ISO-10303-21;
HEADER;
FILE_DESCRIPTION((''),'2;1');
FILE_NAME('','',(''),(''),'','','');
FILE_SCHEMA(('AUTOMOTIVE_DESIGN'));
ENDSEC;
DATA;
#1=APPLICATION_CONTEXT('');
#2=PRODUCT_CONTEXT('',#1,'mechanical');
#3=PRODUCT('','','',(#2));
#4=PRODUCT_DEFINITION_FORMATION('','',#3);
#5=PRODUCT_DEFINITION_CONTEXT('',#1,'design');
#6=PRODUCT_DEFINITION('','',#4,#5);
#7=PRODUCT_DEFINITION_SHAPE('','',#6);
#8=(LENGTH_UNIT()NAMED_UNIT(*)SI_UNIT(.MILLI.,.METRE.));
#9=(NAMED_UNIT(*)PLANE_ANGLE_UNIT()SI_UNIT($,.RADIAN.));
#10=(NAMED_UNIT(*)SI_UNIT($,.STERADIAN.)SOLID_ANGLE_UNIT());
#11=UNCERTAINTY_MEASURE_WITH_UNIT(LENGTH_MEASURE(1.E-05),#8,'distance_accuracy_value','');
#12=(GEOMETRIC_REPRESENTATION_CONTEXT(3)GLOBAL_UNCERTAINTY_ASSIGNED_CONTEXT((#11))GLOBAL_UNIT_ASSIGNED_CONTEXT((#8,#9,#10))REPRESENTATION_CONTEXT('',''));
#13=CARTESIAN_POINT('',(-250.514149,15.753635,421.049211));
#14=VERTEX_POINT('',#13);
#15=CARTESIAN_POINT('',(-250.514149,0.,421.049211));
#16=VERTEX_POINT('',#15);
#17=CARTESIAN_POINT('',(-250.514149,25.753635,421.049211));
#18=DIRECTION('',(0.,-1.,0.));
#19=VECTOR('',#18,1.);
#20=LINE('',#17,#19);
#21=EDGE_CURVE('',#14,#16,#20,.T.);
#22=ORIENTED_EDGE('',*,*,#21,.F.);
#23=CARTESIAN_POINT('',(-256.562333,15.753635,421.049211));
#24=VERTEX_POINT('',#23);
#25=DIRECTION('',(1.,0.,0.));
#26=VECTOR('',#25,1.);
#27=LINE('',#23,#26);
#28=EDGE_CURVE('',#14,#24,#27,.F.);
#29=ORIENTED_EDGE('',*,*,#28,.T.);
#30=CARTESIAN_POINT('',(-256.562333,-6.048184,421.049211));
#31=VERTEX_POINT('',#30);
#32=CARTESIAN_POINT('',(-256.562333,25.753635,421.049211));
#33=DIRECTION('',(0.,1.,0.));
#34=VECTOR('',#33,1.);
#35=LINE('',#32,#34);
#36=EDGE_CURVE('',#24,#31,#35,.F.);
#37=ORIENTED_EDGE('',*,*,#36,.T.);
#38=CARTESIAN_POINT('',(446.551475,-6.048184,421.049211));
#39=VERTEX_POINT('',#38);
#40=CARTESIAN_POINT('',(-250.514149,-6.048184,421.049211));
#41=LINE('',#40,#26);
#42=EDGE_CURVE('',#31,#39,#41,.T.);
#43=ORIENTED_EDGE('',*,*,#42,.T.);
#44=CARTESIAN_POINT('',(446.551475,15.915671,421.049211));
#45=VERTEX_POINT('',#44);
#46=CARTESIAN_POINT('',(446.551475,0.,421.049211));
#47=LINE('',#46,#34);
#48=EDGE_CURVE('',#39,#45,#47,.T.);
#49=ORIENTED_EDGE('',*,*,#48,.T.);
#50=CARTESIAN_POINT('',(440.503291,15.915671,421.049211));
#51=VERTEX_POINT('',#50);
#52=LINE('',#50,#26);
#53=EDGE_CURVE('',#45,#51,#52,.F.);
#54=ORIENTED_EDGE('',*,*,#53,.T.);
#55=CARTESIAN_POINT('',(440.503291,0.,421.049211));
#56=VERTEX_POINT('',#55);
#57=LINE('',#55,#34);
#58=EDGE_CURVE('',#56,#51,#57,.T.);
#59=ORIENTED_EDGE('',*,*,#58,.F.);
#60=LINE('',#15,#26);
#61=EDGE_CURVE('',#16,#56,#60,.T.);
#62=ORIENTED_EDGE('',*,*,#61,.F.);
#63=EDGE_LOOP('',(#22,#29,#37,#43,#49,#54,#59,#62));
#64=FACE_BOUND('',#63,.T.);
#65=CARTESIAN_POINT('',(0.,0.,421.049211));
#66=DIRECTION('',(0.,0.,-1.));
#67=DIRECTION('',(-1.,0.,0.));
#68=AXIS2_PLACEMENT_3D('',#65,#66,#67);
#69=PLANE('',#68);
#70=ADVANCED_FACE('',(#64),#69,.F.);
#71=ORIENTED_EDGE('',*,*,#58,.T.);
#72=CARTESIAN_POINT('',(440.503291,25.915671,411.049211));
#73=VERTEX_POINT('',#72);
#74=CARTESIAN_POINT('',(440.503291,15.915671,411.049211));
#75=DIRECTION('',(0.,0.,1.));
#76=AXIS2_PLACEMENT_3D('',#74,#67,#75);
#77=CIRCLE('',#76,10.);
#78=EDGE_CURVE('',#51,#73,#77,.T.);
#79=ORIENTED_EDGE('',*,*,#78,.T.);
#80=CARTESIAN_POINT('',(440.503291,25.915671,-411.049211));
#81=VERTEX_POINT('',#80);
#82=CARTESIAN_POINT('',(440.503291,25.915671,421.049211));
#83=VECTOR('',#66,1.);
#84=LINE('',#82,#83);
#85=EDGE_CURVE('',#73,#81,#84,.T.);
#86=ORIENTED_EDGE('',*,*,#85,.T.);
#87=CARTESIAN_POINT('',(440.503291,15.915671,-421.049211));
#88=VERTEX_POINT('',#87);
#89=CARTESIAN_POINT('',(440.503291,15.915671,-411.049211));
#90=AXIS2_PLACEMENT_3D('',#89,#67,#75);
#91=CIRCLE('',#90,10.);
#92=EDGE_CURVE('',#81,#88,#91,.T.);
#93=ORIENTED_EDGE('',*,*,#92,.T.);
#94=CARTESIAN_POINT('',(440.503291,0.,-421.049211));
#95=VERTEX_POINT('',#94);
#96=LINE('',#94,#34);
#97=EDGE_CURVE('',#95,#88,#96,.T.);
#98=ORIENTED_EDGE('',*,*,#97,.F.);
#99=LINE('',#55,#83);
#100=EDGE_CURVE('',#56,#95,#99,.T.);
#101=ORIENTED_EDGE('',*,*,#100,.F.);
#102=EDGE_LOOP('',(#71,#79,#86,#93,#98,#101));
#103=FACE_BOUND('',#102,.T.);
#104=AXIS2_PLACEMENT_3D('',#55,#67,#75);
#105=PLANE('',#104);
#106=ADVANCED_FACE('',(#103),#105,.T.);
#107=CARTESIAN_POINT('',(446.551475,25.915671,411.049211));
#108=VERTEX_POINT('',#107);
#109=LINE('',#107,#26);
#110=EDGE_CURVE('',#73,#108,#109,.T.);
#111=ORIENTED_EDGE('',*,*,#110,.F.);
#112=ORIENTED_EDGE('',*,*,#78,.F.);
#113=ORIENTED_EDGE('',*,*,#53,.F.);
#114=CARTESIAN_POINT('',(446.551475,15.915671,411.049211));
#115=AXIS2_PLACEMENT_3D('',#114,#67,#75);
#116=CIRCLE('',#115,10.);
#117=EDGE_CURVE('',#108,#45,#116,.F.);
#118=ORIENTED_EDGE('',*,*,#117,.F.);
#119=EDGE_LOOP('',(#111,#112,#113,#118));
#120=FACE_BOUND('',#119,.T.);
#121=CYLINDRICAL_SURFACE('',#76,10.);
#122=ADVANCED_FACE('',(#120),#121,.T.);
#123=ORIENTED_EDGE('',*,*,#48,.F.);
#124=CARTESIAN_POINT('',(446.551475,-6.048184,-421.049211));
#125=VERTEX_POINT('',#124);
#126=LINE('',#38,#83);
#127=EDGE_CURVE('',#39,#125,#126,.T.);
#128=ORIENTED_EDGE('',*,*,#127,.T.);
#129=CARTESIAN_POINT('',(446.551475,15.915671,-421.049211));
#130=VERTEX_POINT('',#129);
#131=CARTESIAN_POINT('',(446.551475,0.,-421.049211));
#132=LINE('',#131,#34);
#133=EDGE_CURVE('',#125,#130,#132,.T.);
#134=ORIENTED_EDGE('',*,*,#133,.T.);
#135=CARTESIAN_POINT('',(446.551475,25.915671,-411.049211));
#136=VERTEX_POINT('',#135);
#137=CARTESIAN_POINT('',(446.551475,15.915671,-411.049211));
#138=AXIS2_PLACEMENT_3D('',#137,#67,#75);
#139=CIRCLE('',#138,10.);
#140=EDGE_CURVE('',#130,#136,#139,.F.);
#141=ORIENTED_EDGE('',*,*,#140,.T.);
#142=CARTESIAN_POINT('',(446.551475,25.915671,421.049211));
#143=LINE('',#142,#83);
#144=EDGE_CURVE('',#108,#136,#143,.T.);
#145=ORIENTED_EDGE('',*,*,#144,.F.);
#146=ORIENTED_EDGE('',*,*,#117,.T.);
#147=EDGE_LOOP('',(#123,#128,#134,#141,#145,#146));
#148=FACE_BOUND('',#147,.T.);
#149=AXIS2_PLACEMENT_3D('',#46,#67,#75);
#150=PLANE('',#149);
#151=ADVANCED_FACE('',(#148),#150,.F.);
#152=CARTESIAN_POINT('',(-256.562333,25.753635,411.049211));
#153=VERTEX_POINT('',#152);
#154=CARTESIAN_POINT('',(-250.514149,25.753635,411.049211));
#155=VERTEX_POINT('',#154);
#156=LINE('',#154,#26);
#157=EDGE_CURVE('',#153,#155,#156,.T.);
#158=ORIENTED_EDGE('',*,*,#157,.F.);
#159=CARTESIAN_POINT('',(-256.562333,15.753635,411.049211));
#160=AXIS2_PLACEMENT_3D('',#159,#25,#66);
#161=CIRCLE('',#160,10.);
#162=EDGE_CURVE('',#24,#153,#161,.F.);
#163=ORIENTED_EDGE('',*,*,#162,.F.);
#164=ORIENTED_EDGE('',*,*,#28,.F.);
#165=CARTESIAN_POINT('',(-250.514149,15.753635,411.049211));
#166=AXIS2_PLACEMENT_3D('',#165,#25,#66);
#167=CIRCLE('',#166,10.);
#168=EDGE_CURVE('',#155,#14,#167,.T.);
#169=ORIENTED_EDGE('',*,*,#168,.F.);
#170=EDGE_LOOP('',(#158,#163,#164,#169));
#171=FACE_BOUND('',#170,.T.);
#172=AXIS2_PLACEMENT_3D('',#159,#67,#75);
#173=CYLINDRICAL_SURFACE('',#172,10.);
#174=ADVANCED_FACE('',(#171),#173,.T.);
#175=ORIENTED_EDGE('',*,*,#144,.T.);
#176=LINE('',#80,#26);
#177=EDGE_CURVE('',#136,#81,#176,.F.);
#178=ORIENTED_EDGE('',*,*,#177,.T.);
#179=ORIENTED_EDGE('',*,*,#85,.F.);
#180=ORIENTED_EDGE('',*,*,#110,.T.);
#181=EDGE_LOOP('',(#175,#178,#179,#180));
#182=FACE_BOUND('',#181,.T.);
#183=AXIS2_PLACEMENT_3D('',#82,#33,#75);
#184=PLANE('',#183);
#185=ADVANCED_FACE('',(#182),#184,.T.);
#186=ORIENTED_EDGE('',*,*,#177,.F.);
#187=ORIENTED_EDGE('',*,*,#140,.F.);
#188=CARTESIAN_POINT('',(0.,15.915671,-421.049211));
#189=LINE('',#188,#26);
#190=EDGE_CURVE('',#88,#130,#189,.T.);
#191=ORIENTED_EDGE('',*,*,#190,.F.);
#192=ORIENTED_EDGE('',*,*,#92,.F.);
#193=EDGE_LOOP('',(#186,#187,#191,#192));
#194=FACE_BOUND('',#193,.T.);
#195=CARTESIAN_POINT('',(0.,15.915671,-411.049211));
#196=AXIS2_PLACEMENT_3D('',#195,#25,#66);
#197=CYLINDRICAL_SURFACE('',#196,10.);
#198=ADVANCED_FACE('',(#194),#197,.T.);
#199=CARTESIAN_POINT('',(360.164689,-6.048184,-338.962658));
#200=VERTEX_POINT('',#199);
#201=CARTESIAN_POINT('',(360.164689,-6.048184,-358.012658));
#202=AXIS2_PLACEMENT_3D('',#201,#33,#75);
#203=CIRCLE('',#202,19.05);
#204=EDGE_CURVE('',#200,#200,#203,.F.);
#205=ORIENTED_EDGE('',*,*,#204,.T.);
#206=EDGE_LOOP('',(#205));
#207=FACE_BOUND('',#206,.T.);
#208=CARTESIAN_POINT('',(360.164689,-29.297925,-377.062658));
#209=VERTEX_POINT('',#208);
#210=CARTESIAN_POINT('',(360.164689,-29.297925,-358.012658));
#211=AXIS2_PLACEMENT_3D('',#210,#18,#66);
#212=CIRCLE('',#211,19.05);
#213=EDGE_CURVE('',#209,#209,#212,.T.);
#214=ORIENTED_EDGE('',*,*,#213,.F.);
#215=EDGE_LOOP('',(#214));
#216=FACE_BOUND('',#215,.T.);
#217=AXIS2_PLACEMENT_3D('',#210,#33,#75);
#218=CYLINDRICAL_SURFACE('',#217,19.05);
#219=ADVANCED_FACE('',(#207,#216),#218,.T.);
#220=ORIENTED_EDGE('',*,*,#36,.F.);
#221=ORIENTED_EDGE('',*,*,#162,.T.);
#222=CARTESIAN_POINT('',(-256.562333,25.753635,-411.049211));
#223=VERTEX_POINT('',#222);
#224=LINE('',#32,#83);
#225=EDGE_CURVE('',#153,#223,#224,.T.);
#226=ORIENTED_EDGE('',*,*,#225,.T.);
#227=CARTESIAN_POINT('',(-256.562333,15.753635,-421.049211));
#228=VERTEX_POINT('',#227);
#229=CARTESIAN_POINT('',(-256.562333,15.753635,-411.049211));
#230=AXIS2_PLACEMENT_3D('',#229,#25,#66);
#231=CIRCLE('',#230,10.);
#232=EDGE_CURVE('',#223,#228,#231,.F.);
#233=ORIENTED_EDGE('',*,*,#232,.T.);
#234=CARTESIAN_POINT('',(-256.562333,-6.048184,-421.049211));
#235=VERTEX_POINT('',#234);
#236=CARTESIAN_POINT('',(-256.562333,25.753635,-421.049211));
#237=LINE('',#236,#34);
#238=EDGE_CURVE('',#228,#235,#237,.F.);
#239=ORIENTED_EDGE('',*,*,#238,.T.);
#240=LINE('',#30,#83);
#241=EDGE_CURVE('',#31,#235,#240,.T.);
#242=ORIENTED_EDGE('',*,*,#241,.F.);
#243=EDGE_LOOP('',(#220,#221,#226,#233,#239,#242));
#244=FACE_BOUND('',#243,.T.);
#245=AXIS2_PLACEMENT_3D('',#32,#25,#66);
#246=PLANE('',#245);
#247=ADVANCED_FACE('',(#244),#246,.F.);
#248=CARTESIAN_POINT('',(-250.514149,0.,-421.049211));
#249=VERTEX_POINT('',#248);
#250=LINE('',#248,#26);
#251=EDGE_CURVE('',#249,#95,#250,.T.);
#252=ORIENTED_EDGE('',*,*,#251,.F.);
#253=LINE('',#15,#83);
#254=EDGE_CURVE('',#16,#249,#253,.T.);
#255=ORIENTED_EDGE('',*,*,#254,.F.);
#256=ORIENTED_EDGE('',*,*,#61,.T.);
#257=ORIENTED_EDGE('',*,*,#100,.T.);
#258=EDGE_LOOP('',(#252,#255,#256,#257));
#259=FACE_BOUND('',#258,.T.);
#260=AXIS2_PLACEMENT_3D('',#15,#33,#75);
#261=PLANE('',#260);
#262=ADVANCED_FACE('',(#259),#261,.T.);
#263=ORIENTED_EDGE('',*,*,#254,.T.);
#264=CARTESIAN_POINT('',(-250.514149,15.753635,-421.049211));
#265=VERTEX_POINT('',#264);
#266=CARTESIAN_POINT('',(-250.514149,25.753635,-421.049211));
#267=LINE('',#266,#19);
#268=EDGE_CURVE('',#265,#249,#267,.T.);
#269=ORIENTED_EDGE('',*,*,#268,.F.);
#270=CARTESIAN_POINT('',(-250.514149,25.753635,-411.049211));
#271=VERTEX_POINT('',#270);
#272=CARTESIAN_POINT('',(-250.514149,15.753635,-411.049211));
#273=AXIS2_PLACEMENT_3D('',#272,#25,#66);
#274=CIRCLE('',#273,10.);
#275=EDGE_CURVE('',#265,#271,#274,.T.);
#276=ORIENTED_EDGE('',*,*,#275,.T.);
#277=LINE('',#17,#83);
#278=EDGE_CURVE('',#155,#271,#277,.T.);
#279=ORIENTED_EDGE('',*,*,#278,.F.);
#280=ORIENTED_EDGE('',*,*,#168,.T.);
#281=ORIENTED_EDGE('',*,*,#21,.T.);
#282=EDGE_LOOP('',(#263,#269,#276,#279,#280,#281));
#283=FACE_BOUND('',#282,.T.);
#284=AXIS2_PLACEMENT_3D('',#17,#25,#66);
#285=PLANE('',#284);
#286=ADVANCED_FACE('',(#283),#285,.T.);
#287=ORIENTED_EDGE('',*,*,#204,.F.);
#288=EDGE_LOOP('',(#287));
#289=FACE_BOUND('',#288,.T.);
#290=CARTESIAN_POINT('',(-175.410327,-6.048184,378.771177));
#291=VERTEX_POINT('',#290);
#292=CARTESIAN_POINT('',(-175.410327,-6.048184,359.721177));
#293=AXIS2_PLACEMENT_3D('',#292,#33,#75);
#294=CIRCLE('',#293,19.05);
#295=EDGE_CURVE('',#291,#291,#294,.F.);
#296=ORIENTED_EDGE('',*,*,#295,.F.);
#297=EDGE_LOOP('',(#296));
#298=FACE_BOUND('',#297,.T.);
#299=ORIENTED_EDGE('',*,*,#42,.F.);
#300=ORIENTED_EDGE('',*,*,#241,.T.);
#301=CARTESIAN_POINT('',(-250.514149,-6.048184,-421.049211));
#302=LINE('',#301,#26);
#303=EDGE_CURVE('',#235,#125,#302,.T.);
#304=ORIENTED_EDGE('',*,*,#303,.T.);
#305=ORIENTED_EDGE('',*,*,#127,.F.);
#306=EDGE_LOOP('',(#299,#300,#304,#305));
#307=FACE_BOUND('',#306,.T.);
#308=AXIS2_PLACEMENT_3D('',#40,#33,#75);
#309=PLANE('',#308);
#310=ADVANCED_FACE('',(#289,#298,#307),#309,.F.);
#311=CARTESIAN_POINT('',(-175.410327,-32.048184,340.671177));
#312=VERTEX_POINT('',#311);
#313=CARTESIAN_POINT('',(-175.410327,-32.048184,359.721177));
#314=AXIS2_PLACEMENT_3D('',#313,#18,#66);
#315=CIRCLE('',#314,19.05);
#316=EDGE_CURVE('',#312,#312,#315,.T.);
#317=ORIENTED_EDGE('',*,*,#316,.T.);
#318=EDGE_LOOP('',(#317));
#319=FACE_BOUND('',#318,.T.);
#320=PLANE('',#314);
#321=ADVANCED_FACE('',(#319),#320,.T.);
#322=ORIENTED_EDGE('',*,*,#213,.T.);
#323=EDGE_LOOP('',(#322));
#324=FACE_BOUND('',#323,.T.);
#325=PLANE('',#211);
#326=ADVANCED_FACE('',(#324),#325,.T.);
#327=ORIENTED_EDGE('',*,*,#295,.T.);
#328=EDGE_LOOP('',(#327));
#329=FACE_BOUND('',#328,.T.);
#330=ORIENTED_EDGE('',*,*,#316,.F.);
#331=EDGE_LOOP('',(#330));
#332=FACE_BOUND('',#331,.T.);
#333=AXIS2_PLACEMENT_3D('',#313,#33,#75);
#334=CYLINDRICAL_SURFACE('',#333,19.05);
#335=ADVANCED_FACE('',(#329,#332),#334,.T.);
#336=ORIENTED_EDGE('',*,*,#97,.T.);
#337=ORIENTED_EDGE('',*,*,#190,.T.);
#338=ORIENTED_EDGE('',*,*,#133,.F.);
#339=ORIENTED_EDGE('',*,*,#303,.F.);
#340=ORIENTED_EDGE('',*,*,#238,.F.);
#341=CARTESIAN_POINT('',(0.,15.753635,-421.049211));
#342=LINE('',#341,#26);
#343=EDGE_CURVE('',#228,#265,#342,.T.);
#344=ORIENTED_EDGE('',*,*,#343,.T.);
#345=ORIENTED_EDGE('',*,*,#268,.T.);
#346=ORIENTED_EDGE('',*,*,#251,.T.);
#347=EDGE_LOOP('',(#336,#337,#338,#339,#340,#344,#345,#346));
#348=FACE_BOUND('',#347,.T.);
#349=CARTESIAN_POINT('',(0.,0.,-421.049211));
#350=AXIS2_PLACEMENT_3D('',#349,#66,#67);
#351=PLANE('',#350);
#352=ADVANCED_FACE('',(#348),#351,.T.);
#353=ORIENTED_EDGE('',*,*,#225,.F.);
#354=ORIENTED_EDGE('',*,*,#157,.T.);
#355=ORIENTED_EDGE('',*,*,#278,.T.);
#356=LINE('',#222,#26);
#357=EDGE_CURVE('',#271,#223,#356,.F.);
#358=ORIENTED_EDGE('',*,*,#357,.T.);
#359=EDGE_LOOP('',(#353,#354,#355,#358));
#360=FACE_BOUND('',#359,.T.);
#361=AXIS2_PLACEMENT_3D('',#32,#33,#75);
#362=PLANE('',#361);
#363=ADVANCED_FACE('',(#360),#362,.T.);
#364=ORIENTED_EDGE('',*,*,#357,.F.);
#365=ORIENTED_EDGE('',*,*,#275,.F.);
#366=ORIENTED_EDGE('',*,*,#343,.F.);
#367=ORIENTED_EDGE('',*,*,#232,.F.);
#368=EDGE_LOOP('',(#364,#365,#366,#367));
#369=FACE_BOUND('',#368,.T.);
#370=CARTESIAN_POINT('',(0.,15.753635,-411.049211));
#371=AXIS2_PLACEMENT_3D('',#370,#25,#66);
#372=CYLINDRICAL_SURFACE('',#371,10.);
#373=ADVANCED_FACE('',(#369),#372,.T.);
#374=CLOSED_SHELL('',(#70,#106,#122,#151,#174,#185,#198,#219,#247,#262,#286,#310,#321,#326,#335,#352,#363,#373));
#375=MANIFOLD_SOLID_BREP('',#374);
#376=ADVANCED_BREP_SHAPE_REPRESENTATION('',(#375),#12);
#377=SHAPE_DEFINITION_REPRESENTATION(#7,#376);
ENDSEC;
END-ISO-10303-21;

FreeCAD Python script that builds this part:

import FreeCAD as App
import Part
import Sketcher

V = App.Vector


def edges_at(feature, points):
    """Names of the edges that pass closest to the given points."""
    edges = feature.Shape.Edges
    near = lambda p: min(range(len(edges)), key=lambda i: edges[i].distToShape(Part.Vertex(*p))[0])
    return sorted({f"Edge{near(p) + 1}" for p in points})


def add_polygon(sketch, points):
    """Adds a closed chain of lines whose ends are joined by coincident constraints."""
    first, n = sketch.GeometryCount, len(points)
    for a, b in zip(points, points[1:] + points[:1]):
        sketch.addGeometry(Part.LineSegment(App.Vector(*a, 0), App.Vector(*b, 0)), False)
    for i in range(n):
        sketch.addConstraint(Sketcher.Constraint("Coincident", first + i, 2, first + (i + 1) % n, 1))

doc = App.newDocument("Part")
params = doc.addObject("Spreadsheet::Sheet", "Params")
for row, (alias, value) in enumerate([
    ("pad1_length", "842.098422 mm"),
    ("fillet_radius", "10 mm"),
    ("sketch2_diameter", "38.1 mm"),
    ("pad2_length", "23.249742 mm"),
    ("sketch3_diameter", "38.1 mm"),
    ("pad3_length", "26 mm"),
], start=1):
    params.set(f"A{row}", alias)
    params.set(f"B{row}", "=" + value)
    params.setAlias(f"B{row}", alias)

body = doc.addObject("PartDesign::Body", "Body")

# Sketch on XY plane
sketch1 = doc.addObject("Sketcher::SketchObject", "Sketch")
body.addObject(sketch1)
sketch1.AttachmentSupport = (doc.XY_Plane, [""])
sketch1.MapMode = "FlatFace"
add_polygon(sketch1, [(-250.514149, 0), (-250.514149, 25.753635), (-256.562333, 25.753635), (-256.562333, -6.048184), (446.551475, -6.048184), (446.551475, 25.915671), (440.503291, 25.915671), (440.503291, 0)])  # lines 0-7
sketch1.addConstraint([
    Sketcher.Constraint("Vertical", 0),
    Sketcher.Constraint("Horizontal", 1),
    Sketcher.Constraint("Vertical", 2),
    Sketcher.Constraint("Horizontal", 3),
    Sketcher.Constraint("Vertical", 4),
    Sketcher.Constraint("Horizontal", 5),
    Sketcher.Constraint("Vertical", 6),
    Sketcher.Constraint("Horizontal", 7),
    Sketcher.Constraint("PointOnObject", 6, 2, -1),
    Sketcher.Constraint("Equal", 1, 5),
    Sketcher.Constraint("DistanceX", 7, 2, 7, 1, 691.01744),
    Sketcher.Constraint("DistanceY", 2, 2, 2, 1, 31.801819),
    Sketcher.Constraint("DistanceY", 6, 2, 6, 1, 25.915671),
    Sketcher.Constraint("DistanceX", 1, 2, 1, 1, 6.048184),
    Sketcher.Constraint("DistanceY", 0, 1, 0, 2, 25.753635),
    Sketcher.Constraint("DistanceX", 0, 2, -1, 1, 250.514149),
])
pad1 = doc.addObject("PartDesign::Pad", "Pad")
body.addObject(pad1)
pad1.Profile = sketch1
pad1.setExpression("Length", "Params.pad1_length")
pad1.Midplane = True
doc.recompute()

fillet = doc.addObject("PartDesign::Fillet", "Fillet")
body.addObject(fillet)
fillet.Base = (pad1, edges_at(pad1, [
    (-253.538, 25.754, 421.049),
    (443.527, 25.916, 421.049),
    (-253.538, 25.754, -421.049),
    (443.527, 25.916, -421.049),
]))
fillet.setExpression("Radius", "Params.fillet_radius")

# Sketch on XZ plane
sketch2 = doc.addObject("Sketcher::SketchObject", "Sketch001")
body.addObject(sketch2)
sketch2.AttachmentSupport = (doc.XZ_Plane, [""])
sketch2.MapMode = "FlatFace"
sketch2.AttachmentOffset = App.Placement(V(0, 0, 6.048184), App.Rotation())
sketch2.addGeometry(Part.Circle(V(360.164689, -358.012658, 0), V(0, 0, 1), 19.05), False)
sketch2.addConstraint([
    Sketcher.Constraint("Diameter", 0, 38.1),
    Sketcher.Constraint("DistanceX", -1, 1, 0, 3, 360.164689),
    Sketcher.Constraint("DistanceY", 0, 3, -1, 1, 358.012658),
])
sketch2.setExpression("Constraints[0]", "Params.sketch2_diameter")
pad2 = doc.addObject("PartDesign::Pad", "Pad001")
body.addObject(pad2)
pad2.Profile = sketch2
pad2.setExpression("Length", "Params.pad2_length")

# Sketch on XZ plane
sketch3 = doc.addObject("Sketcher::SketchObject", "Sketch002")
body.addObject(sketch3)
sketch3.AttachmentSupport = (doc.XZ_Plane, [""])
sketch3.MapMode = "FlatFace"
sketch3.AttachmentOffset = App.Placement(V(0, 0, 6.048184), App.Rotation())
sketch3.addGeometry(Part.Circle(V(-175.410327, 359.721177, 0), V(0, 0, 1), 19.05), False)
sketch3.addConstraint([
    Sketcher.Constraint("Diameter", 0, 38.1),
    Sketcher.Constraint("DistanceX", 0, 3, -1, 1, 175.410327),
    Sketcher.Constraint("DistanceY", -1, 1, 0, 3, 359.721177),
])
sketch3.setExpression("Constraints[0]", "Params.sketch3_diameter")
pad3 = doc.addObject("PartDesign::Pad", "Pad002")
body.addObject(pad3)
pad3.Profile = sketch3
pad3.setExpression("Length", "Params.pad3_length")

doc.recompute()
